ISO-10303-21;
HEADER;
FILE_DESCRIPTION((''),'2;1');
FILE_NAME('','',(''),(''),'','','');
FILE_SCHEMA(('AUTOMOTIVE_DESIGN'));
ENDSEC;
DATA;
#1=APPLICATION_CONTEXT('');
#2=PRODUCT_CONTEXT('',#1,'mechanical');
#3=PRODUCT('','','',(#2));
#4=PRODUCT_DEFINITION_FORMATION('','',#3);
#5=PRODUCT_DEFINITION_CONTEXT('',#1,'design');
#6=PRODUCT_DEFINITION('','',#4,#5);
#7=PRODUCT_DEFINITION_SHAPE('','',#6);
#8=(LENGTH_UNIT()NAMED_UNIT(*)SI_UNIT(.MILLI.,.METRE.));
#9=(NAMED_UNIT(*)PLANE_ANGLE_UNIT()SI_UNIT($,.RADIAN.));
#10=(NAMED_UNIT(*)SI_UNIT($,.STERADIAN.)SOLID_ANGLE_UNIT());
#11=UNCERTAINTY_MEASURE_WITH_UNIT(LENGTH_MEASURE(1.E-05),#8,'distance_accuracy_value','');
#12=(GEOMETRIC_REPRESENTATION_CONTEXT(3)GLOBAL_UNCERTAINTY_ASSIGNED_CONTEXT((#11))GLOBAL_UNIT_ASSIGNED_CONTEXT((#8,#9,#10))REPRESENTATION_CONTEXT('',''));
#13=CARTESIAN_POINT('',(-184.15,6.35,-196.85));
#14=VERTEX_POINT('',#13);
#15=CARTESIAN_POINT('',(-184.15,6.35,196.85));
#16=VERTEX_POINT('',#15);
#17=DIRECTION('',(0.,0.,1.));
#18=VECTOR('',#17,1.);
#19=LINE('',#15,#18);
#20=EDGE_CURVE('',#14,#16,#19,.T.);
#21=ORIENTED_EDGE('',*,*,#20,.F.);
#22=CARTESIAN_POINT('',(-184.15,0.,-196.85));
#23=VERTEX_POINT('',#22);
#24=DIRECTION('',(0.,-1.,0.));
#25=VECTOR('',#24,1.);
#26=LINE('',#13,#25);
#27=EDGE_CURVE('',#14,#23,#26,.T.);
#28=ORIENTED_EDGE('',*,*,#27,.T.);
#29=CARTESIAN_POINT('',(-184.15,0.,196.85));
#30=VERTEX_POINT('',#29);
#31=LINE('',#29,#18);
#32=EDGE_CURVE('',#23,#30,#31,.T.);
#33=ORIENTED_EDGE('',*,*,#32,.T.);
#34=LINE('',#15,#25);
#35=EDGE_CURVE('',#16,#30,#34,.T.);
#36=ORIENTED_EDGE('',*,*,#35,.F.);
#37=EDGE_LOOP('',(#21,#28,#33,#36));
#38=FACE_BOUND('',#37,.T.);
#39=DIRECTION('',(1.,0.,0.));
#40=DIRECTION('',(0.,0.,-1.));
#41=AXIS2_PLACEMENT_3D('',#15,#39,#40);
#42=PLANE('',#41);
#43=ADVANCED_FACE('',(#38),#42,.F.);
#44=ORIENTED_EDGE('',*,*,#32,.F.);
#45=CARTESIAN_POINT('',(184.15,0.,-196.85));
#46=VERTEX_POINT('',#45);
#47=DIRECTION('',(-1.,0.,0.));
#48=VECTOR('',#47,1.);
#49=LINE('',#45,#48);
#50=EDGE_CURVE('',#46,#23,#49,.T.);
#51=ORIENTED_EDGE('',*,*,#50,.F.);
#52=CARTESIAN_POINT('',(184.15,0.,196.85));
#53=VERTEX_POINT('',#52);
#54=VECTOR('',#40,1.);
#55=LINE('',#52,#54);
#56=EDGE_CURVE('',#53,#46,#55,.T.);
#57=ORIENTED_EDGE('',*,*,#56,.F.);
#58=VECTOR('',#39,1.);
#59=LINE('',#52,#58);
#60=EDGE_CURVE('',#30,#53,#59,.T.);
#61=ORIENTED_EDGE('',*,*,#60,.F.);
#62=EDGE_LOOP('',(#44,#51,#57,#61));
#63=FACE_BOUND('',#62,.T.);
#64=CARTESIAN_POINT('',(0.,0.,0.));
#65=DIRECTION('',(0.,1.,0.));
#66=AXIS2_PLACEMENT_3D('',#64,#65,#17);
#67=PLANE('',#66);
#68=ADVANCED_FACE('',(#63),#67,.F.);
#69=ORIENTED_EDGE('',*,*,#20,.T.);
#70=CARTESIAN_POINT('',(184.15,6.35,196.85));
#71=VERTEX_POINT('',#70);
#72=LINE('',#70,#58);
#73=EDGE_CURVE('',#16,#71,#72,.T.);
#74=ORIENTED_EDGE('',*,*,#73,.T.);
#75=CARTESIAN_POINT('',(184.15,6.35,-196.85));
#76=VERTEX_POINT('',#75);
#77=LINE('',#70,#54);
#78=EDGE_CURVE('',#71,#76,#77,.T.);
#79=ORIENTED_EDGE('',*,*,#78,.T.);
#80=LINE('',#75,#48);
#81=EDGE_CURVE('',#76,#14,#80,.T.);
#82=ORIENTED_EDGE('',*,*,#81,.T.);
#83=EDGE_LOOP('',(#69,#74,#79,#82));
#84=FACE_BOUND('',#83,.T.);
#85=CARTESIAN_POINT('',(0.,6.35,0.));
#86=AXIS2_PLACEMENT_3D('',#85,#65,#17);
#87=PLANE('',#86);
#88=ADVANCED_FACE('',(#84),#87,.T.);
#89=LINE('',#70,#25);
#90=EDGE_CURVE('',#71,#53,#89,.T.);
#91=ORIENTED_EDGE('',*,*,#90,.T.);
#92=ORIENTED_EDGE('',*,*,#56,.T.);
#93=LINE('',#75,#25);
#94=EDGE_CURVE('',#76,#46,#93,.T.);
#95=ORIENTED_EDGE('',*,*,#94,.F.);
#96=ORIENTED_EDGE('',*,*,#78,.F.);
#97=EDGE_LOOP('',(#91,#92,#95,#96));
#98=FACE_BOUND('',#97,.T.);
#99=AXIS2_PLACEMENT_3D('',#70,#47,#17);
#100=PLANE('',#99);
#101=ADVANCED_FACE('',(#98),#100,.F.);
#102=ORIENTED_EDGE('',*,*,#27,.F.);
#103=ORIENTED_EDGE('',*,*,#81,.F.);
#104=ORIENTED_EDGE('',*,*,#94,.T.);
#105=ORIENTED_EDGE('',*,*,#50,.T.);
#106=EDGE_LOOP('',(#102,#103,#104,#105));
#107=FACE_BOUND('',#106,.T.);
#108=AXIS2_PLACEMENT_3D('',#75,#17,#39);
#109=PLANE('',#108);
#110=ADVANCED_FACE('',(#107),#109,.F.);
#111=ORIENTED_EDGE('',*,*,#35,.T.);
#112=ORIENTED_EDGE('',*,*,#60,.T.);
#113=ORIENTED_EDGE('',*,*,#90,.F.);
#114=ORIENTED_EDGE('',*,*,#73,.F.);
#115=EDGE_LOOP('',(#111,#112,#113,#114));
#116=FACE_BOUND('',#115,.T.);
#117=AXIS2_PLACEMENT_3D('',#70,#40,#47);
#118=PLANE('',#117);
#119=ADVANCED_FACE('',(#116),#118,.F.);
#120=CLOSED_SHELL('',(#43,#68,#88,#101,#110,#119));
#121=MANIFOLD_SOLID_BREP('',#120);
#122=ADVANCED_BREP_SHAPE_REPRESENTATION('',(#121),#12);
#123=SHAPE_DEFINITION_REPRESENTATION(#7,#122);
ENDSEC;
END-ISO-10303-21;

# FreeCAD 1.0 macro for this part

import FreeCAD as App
import Part
import Sketcher
Q = App.Units.Quantity


def add_polygon(sketch, points):
    """Adds a closed chain of lines whose ends are joined by coincident constraints."""
    first, n = sketch.GeometryCount, len(points)
    for a, b in zip(points, points[1:] + points[:1]):
        sketch.addGeometry(Part.LineSegment(App.Vector(*a, 0), App.Vector(*b, 0)), False)
    for i in range(n):
        sketch.addConstraint(Sketcher.Constraint("Coincident", first + i, 2, first + (i + 1) % n, 1))

doc = App.newDocument("Part")
body = doc.addObject("PartDesign::Body", "Body")

sketch1 = doc.addObject("Sketcher::SketchObject", "Sketch")
body.addObject(sketch1)
sketch1.AttachmentSupport = (doc.XZ_Plane, [""])
sketch1.MapMode = "FlatFace"
add_polygon(sketch1, [(-184, -197), (-184, 197), (184, 197), (184, -197)])
sketch1.addConstraint([
    Sketcher.Constraint("Vertical", 0),
    Sketcher.Constraint("Horizontal", 1),
    Sketcher.Constraint("Vertical", 2),
    Sketcher.Constraint("Horizontal", 3),
    Sketcher.Constraint("Symmetric", 0, 2, 2, 2, -1, 1),
    Sketcher.Constraint("DistanceX", 1, 1, 1, 2, Q("14.5 in")),
    Sketcher.Constraint("DistanceY", 0, 1, 0, 2, Q("15.5 in")),
])
pad1 = doc.addObject("PartDesign::Pad", "Pad")
body.addObject(pad1)
pad1.Profile = sketch1
pad1.Length = Q("0.25 in")
pad1.Reversed = True

doc.recompute()
